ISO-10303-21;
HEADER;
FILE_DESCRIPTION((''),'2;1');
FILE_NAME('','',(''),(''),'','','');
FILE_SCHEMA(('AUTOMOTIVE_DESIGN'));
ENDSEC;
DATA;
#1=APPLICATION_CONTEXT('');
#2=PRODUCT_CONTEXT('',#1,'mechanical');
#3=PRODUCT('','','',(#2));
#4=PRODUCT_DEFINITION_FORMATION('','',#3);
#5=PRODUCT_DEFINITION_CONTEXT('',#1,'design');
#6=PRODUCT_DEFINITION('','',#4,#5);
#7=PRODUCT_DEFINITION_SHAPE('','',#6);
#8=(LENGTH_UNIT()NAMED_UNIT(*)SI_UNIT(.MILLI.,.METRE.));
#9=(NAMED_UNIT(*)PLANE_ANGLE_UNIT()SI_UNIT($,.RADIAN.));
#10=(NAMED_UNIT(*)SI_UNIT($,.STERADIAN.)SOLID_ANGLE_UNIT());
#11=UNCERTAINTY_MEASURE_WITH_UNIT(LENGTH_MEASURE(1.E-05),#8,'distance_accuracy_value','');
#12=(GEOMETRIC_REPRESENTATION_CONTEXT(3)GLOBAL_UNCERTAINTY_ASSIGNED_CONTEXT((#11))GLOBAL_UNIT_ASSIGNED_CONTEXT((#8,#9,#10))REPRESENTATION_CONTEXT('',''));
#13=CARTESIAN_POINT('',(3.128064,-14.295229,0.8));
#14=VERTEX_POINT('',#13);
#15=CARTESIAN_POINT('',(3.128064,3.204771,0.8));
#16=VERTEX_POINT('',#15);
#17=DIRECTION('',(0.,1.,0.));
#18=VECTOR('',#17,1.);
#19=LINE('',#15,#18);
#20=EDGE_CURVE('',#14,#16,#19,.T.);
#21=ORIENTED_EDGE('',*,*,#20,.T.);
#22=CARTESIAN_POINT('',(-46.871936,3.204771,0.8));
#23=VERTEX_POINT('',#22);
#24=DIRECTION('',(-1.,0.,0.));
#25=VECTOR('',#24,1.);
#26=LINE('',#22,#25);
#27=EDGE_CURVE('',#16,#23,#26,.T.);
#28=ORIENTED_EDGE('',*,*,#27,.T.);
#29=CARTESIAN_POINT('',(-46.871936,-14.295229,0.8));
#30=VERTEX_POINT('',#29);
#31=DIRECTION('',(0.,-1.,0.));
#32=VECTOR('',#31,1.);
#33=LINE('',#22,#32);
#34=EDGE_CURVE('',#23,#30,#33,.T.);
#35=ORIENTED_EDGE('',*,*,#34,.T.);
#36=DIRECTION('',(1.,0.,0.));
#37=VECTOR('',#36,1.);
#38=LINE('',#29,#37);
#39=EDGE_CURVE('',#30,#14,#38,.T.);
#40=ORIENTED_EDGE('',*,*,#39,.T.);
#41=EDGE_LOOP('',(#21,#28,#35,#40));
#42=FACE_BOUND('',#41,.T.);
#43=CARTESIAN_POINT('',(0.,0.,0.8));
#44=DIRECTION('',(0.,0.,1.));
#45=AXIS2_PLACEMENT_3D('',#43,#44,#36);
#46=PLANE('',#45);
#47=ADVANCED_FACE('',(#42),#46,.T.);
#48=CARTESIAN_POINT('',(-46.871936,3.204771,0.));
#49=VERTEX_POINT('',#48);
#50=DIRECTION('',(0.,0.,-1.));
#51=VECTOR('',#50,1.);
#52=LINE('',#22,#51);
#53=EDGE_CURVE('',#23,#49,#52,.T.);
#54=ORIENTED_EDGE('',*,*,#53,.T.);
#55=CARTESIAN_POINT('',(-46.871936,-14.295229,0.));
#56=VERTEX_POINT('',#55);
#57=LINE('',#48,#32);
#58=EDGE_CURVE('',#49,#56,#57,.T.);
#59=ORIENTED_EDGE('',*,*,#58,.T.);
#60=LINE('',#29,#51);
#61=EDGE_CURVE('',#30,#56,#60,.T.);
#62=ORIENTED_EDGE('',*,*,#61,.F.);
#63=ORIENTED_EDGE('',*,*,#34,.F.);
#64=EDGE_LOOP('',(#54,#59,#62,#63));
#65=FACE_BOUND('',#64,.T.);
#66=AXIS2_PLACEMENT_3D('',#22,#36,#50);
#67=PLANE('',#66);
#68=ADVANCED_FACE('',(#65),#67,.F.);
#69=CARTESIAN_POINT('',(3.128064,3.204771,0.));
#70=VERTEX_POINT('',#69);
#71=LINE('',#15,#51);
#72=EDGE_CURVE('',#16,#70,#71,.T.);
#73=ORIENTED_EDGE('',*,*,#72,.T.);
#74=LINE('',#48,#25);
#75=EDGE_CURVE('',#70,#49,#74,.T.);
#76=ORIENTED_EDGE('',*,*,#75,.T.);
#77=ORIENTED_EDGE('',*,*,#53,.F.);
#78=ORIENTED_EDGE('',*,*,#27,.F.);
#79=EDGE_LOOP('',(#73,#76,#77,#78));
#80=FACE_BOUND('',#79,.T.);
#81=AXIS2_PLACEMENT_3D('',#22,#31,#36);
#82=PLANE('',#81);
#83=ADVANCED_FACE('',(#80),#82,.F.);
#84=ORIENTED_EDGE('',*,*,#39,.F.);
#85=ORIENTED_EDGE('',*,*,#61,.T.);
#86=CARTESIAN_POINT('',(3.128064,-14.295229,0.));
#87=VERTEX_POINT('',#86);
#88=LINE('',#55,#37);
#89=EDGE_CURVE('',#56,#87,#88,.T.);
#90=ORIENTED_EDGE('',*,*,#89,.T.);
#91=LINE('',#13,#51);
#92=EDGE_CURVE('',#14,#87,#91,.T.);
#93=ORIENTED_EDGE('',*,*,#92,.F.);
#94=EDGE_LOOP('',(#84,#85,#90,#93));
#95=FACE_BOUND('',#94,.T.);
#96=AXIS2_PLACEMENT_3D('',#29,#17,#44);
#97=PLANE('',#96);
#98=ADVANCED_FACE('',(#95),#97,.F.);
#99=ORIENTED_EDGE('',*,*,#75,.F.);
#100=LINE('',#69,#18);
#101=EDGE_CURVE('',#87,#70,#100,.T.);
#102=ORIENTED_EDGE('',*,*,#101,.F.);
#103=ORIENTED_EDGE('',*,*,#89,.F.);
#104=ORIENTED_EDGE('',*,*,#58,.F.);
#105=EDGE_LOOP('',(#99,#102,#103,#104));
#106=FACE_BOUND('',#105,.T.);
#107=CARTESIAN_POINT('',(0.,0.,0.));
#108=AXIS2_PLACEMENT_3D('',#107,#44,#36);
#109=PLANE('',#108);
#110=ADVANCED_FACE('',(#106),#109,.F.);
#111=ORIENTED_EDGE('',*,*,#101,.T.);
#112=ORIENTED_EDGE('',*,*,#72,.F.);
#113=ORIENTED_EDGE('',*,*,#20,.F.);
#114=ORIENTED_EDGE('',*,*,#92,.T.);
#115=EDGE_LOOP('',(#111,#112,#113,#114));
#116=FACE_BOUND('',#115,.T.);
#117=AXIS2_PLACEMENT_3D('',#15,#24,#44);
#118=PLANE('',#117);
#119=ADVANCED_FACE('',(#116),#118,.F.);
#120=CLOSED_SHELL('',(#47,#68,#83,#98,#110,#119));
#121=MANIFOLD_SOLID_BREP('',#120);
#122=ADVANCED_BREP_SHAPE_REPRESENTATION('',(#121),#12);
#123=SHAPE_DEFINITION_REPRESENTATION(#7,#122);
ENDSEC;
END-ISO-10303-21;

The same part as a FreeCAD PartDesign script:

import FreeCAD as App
import Part
import Sketcher
Q = App.Units.Quantity


def add_polygon(sketch, points):
    """Adds a closed chain of lines whose ends are joined by coincident constraints."""
    first, n = sketch.GeometryCount, len(points)
    for a, b in zip(points, points[1:] + points[:1]):
        sketch.addGeometry(Part.LineSegment(App.Vector(*a, 0), App.Vector(*b, 0)), False)
    for i in range(n):
        sketch.addConstraint(Sketcher.Constraint("Coincident", first + i, 2, first + (i + 1) % n, 1))

doc = App.newDocument("Part")
body = doc.addObject("PartDesign::Body", "Body")

# Sketch on XY plane
sketch1 = body.newObject("Sketcher::SketchObject", "Sketch")
sketch1.AttachmentSupport = (doc.getObject("XY_Plane"), [""])
sketch1.MapMode = "FlatFace"
add_polygon(sketch1, [(-47, 3), (-47, -14), (3, -14), (3, 3)])  # lines 0-3
sketch1.addConstraint(Sketcher.Constraint("Vertical", 0))
sketch1.addConstraint(Sketcher.Constraint("Horizontal", 1))
sketch1.addConstraint(Sketcher.Constraint("Vertical", 2))
sketch1.addConstraint(Sketcher.Constraint("Horizontal", 3))
sketch1.addConstraint(Sketcher.Constraint("DistanceX", 1, 1, 1, 2, Q("50 mm")))
sketch1.addConstraint(Sketcher.Constraint("DistanceY", 0, 2, 0, 1, Q("17.5 mm")))
sketch1.addConstraint(Sketcher.Constraint("DistanceY", 0, 2, -1, 1, Q("14.295229 mm")))
sketch1.addConstraint(Sketcher.Constraint("DistanceX", 0, 2, -1, 1, Q("46.871936 mm")))
pad1 = body.newObject("PartDesign::Pad", "Pad")
pad1.Profile = sketch1
pad1.Length = 0.8

doc.recompute()
